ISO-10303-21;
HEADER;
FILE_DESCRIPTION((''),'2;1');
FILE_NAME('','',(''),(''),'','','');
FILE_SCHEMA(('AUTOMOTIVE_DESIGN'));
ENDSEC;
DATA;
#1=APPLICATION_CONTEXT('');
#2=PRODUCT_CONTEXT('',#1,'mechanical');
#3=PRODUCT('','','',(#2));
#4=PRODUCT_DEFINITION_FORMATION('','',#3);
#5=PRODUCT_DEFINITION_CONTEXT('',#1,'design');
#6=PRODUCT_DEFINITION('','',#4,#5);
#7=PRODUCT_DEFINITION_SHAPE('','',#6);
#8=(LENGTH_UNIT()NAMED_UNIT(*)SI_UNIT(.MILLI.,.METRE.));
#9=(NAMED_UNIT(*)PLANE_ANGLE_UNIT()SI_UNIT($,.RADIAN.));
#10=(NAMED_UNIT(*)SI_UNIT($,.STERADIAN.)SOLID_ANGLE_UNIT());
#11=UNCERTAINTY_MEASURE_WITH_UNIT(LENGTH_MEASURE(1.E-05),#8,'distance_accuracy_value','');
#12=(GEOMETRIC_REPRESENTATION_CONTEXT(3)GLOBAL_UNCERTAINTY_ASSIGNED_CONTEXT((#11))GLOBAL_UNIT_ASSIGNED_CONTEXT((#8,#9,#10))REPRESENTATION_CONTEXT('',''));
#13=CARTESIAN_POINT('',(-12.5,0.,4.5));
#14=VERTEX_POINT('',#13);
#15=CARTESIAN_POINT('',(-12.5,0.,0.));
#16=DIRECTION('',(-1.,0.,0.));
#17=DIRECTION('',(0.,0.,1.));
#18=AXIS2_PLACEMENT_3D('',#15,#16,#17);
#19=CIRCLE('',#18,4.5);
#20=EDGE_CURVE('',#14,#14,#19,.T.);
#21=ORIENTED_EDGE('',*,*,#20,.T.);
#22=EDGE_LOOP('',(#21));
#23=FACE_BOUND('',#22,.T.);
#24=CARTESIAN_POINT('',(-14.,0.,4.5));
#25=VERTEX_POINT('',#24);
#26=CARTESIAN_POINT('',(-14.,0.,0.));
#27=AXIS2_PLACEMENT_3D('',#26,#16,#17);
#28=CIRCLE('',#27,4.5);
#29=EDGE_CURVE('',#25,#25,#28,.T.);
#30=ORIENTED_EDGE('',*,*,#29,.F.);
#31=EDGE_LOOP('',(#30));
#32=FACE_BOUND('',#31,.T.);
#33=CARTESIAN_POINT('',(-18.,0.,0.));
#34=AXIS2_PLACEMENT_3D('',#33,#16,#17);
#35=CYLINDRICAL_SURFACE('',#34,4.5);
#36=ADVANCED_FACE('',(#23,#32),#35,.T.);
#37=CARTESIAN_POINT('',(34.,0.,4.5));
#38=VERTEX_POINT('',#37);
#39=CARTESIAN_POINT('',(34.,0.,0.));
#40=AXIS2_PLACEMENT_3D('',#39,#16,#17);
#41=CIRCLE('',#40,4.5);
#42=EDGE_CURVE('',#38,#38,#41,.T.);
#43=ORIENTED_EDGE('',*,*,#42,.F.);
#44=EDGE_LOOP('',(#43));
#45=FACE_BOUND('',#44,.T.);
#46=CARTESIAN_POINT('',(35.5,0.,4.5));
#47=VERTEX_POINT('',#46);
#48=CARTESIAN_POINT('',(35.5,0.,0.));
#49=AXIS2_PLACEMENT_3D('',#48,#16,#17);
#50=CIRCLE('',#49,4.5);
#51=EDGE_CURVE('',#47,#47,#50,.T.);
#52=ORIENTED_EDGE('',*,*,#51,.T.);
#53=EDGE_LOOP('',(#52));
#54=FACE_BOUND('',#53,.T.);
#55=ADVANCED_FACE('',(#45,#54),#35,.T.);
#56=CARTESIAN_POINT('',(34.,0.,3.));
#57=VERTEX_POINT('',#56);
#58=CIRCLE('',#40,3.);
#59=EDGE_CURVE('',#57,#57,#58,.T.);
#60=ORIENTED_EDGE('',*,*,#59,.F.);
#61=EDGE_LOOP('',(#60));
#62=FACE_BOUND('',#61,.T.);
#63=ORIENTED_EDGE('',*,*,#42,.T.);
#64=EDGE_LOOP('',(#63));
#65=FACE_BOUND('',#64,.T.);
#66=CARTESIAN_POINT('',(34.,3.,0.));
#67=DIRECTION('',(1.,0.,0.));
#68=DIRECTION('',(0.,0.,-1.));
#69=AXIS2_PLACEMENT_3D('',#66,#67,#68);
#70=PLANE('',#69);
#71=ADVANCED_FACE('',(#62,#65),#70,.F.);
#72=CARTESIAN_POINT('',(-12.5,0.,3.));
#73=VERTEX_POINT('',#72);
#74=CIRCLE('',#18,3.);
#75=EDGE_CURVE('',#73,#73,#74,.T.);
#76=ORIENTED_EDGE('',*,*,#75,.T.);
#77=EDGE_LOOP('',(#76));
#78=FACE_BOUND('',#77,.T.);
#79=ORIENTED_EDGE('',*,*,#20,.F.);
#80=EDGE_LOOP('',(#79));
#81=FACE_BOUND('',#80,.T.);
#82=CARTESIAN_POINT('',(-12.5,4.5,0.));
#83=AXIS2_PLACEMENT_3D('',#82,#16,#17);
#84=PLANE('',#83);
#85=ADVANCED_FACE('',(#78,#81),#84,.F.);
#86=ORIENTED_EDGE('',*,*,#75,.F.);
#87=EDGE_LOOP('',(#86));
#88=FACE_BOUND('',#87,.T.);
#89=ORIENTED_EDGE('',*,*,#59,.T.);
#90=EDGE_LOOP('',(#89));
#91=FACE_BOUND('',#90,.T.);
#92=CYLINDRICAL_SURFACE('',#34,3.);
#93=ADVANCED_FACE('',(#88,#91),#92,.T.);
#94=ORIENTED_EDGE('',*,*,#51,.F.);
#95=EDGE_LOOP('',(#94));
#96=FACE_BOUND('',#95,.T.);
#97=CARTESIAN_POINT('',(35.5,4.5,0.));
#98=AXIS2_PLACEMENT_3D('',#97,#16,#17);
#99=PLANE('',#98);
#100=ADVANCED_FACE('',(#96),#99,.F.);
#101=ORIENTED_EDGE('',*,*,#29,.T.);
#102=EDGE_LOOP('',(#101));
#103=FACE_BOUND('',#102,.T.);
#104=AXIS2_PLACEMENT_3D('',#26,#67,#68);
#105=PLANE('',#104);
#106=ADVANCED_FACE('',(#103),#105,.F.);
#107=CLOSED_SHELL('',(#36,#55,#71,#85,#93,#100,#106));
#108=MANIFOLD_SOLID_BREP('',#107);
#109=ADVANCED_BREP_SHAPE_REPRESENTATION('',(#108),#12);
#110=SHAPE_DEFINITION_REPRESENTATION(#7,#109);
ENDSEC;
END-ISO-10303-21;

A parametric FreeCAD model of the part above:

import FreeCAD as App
import Part
import Sketcher

V = App.Vector

doc = App.newDocument("Part")
body = doc.addObject("PartDesign::Body", "Body")

# Sketch on XY plane
sketch1 = body.newObject("Sketcher::SketchObject", "Sketch")
sketch1.AttachmentSupport = (doc.getObject("XY_Plane"), [""])
sketch1.MapMode = "FlatFace"
sketch1.addGeometry([
    Part.LineSegment(V(-14, 4.5, 0), V(-14, 0, 0)),  # 0
    Part.LineSegment(V(-14, 0, 0), V(35.5, 0, 0)),  # 1
    Part.LineSegment(V(35.5, 0, 0), V(35.5, 4.5, 0)),  # 2
    Part.LineSegment(V(35.5, 4.5, 0), V(34, 4.5, 0)),  # 3
    Part.LineSegment(V(34, 4.5, 0), V(34, 3, 0)),  # 4
    Part.LineSegment(V(34, 3, 0), V(-12.5, 3, 0)),  # 5
    Part.LineSegment(V(-12.5, 3, 0), V(-12.5, 4.5, 0)),  # 6
    Part.LineSegment(V(-12.5, 4.5, 0), V(-14, 4.5, 0)),  # 7
], False)
sketch1.addConstraint([
    Sketcher.Constraint("Coincident", 0, 2, 1, 1),
    Sketcher.Constraint("Coincident", 1, 2, 2, 1),
    Sketcher.Constraint("Coincident", 2, 2, 3, 1),
    Sketcher.Constraint("Coincident", 3, 2, 4, 1),
    Sketcher.Constraint("Coincident", 4, 2, 5, 1),
    Sketcher.Constraint("Coincident", 5, 2, 6, 1),
    Sketcher.Constraint("Coincident", 6, 2, 7, 1),
    Sketcher.Constraint("Coincident", 7, 2, 0, 1),
    Sketcher.Constraint("Vertical", 0),
    Sketcher.Constraint("Horizontal", 1),
    Sketcher.Constraint("Vertical", 2),
    Sketcher.Constraint("Horizontal", 3),
    Sketcher.Constraint("Vertical", 4),
    Sketcher.Constraint("Horizontal", 5),
    Sketcher.Constraint("Vertical", 6),
    Sketcher.Constraint("Horizontal", 7),
    Sketcher.Constraint("PointOnObject", 0, 2, -1),
    Sketcher.Constraint("Horizontal", 3, 2, 6, 2),
    Sketcher.Constraint("Equal", 3, 7),
    Sketcher.Constraint("Equal", 7, 4),
    Sketcher.Constraint("DistanceX", 1, 1, 1, 2, 49.5),
    Sketcher.Constraint("DistanceX", 3, 2, 3, 1, 1.5),
    Sketcher.Constraint("DistanceY", 0, 2, 0, 1, 4.5),
    Sketcher.Constraint("DistanceX", 0, 2, -1, 1, 14.0),
])
revolution = body.newObject("PartDesign::Revolution", "Revolution")
revolution.Profile = sketch1
revolution.ReferenceAxis = (sketch1, ["H_Axis"])
revolution.Angle = 360

doc.recompute()
